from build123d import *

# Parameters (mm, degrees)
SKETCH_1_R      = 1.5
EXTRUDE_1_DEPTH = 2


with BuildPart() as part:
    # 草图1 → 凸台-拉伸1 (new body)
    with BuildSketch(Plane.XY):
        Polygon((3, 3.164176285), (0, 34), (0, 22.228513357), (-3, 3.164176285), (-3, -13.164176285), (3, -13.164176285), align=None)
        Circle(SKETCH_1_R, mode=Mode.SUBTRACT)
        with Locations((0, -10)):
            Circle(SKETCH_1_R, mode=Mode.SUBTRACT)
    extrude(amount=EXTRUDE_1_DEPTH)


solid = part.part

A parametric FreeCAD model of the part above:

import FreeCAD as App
import Part
import Sketcher

V = App.Vector
Q = App.Units.Quantity

doc = App.newDocument("Part")
body = doc.addObject("PartDesign::Body", "Body")

# Sketch on XY plane
sketch1 = body.newObject("Sketcher::SketchObject", "Sketch")
sketch1.AttachmentSupport = (doc.getObject("XY_Plane"), [""])
sketch1.MapMode = "FlatFace"
sketch1.addGeometry(Part.LineSegment(V(3, 3.2, 0), V(0, 34, 0)), False)
sketch1.addGeometry(Part.LineSegment(V(0, 34, 0), V(0, 22.2, 0)), False)
sketch1.addGeometry(Part.LineSegment(V(0, 22.2, 0), V(-3, 3.2, 0)), False)
sketch1.addGeometry(Part.LineSegment(V(-3, 3.2, 0), V(-3, -13.2, 0)), False)
sketch1.addGeometry(Part.LineSegment(V(-3, -13.2, 0), V(3, -13.2, 0)), False)
sketch1.addGeometry(Part.LineSegment(V(3, -13.2, 0), V(3, 3.2, 0)), False)
sketch1.addGeometry(Part.Circle(V(0, -10, 0), V(0, 0, 1), 1.5), False)
sketch1.addGeometry(Part.Circle(V(0, 0, 0), V(0, 0, 1), 1.5), False)
sketch1.addConstraint(Sketcher.Constraint("Coincident", 0, 2, 1, 1))
sketch1.addConstraint(Sketcher.Constraint("Coincident", 1, 2, 2, 1))
sketch1.addConstraint(Sketcher.Constraint("Coincident", 2, 2, 3, 1))
sketch1.addConstraint(Sketcher.Constraint("Coincident", 3, 2, 4, 1))
sketch1.addConstraint(Sketcher.Constraint("Coincident", 4, 2, 5, 1))
sketch1.addConstraint(Sketcher.Constraint("Coincident", 5, 2, 0, 1))
sketch1.addConstraint(Sketcher.Constraint("Vertical", 1))
sketch1.addConstraint(Sketcher.Constraint("Vertical", 3))
sketch1.addConstraint(Sketcher.Constraint("Horizontal", 4))
sketch1.addConstraint(Sketcher.Constraint("Vertical", 5))
sketch1.addConstraint(Sketcher.Constraint("Coincident", 7, 3, -1, 1))
sketch1.addConstraint(Sketcher.Constraint("Equal", 6, 7))
sketch1.addConstraint(Sketcher.Constraint("Symmetric", 2, 2, 5, 2, -2))
sketch1.addConstraint(Sketcher.Constraint("PointOnObject", 6, 3, -2))
sketch1.addConstraint(Sketcher.Constraint("PointOnObject", 0, 2, -2))
sketch1.addConstraint(Sketcher.Constraint("Diameter", 6, Q("3 mm")))
sketch1.addConstraint(Sketcher.Constraint("DistanceX", 4, 1, 4, 2, Q("6 mm")))
sketch1.addConstraint(Sketcher.Constraint("DistanceY", 6, 3, -1, 1, Q("10 mm")))
sketch1.addConstraint(Sketcher.Constraint("DistanceY", -1, 1, 0, 2, Q("34 mm")))
sketch1.addConstraint(Sketcher.Constraint("DistanceY", 1, 2, 1, 1, Q("11.771487 mm")))
sketch1.addConstraint(Sketcher.Constraint("DistanceY", 3, 2, 3, 1, Q("16.328353 mm")))
sketch1.addConstraint(Sketcher.Constraint("DistanceY", 3, 2, 1, 2, Q("35.39269 mm")))
pad1 = body.newObject("PartDesign::Pad", "Pad")
pad1.Profile = sketch1
pad1.Length = 2

doc.recompute()
